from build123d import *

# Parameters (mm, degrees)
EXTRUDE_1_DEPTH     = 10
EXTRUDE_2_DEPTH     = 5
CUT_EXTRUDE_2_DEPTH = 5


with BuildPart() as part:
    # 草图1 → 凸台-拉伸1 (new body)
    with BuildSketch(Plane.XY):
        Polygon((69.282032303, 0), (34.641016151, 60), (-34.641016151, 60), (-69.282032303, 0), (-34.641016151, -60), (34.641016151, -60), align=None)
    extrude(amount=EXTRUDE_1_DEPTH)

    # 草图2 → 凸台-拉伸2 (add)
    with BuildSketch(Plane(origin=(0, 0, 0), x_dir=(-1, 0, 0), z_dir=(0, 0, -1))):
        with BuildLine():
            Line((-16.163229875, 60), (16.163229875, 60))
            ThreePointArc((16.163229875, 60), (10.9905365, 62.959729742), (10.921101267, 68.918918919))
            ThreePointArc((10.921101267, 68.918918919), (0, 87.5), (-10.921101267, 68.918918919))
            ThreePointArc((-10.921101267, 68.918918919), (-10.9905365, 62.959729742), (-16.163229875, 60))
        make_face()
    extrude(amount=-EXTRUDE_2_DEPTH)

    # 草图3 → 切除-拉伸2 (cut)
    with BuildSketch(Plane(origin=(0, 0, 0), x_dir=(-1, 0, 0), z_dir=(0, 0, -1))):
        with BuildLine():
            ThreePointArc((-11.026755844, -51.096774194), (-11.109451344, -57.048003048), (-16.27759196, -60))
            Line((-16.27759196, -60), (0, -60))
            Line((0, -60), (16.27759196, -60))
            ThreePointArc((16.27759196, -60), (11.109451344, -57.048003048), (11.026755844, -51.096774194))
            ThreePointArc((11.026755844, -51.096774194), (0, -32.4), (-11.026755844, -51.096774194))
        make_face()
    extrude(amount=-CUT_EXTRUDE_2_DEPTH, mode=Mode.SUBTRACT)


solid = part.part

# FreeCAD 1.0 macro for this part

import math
import FreeCAD as App
import Part
import Sketcher

V = App.Vector
Q = App.Units.Quantity

doc = App.newDocument("Part")
params = doc.addObject("Spreadsheet::Sheet", "Params")
for row, (alias, value) in enumerate([
    ("pad1_length", "10 mm"),
    ("sketch2_radius", "6 mm"),
    ("sketch2_radius2", "12.5 mm"),
    ("pad2_length", "5 mm"),
    ("sketch3_radius", "6 mm"),
    ("sketch3_radius2", "12.6 mm"),
    ("pocket1_length", "5 mm"),
], start=1):
    params.set(f"A{row}", alias)
    params.set(f"B{row}", "=" + value)
    params.setAlias(f"B{row}", alias)

body = doc.addObject("PartDesign::Body", "Body")

sketch1 = body.newObject("Sketcher::SketchObject", "Sketch")
sketch1.AttachmentSupport = (doc.getObject("XY_Plane"), [""])
sketch1.MapMode = "FlatFace"
sketch1.addGeometry([
    Part.LineSegment(V(69.282032, 0, 0), V(34.641016, 60, 0)),
    Part.LineSegment(V(34.641016, 60, 0), V(-34.641016, 60, 0)),
    Part.LineSegment(V(-34.641016, 60, 0), V(-69.282032, 0, 0)),
    Part.LineSegment(V(-69.282032, 0, 0), V(-34.641016, -60, 0)),
    Part.LineSegment(V(-34.641016, -60, 0), V(34.641016, -60, 0)),
    Part.LineSegment(V(34.641016, -60, 0), V(69.282032, 0, 0)),
], False)
sketch1.addConstraint([
    Sketcher.Constraint("Coincident", 0, 2, 1, 1),
    Sketcher.Constraint("Coincident", 1, 2, 2, 1),
    Sketcher.Constraint("Coincident", 2, 2, 3, 1),
    Sketcher.Constraint("Coincident", 3, 2, 4, 1),
    Sketcher.Constraint("Coincident", 4, 2, 5, 1),
    Sketcher.Constraint("Coincident", 5, 2, 0, 1),
    Sketcher.Constraint("Horizontal", 1),
    Sketcher.Constraint("Horizontal", 4),
    Sketcher.Constraint("Symmetric", 0, 2, 3, 2, -1, 1),
    Sketcher.Constraint("Symmetric", 2, 2, 5, 2, -1, 1),
    Sketcher.Constraint("PointOnObject", 2, 2, -1),
    Sketcher.Constraint("Parallel", 2, 5),
    Sketcher.Constraint("Vertical", 1, 2, 3, 2),
    Sketcher.Constraint("Angle", 0, Q("120 deg")),
    Sketcher.Constraint("DistanceY", -1, 1, 0, 2, 60.0),
    Sketcher.Constraint("DistanceX", 1, 2, 1, 1, 69.282032),
])
pad1 = body.newObject("PartDesign::Pad", "Pad")
pad1.Profile = sketch1
pad1.setExpression("Length", "Params.pad1_length")

sketch2 = body.newObject("Sketcher::SketchObject", "Sketch001")
sketch2.AttachmentSupport = (doc.getObject("XY_Plane"), [""])
sketch2.MapMode = "FlatFace"
sketch2.addGeometry([
    Part.LineSegment(V(16.16323, 60, 0), V(-16.16323, 60, 0)),
    Part.ArcOfCircle(Part.Circle(V(-16.16323, 66, 0), V(0, 0, 1), 6), math.radians(-90), math.radians(29.109909)),
    Part.ArcOfCircle(Part.Circle(V(0, 75, 0), V(0, 0, 1), 12.5), math.radians(-29.109909), math.radians(209.109909)),
    Part.ArcOfCircle(Part.Circle(V(16.16323, 66, 0), V(0, 0, 1), 6), math.radians(150.890091), math.radians(270)),
], False)
sketch2.addConstraint([
    Sketcher.Constraint("Tangent", 0, 2, 1, 1),
    Sketcher.Constraint("Tangent", 1, 2, 2, 2),
    Sketcher.Constraint("Tangent", 2, 1, 3, 1),
    Sketcher.Constraint("Tangent", 3, 2, 0, 1),
    Sketcher.Constraint("Horizontal", 0),
    Sketcher.Constraint("Equal", 1, 3),
    Sketcher.Constraint("PointOnObject", 2, 3, -2),
    Sketcher.Constraint("Radius", 1, 6.0),
    Sketcher.Constraint("Radius", 2, 12.5),
    Sketcher.Constraint("DistanceY", -1, 1, 1, 3, 66.0),
    Sketcher.Constraint("DistanceY", -1, 1, 2, 3, 75.0),
])
sketch2.setExpression("Constraints[7]", "Params.sketch2_radius")
sketch2.setExpression("Constraints[8]", "Params.sketch2_radius2")
pad2 = body.newObject("PartDesign::Pad", "Pad001")
pad2.Profile = sketch2
pad2.setExpression("Length", "Params.pad2_length")

sketch3 = body.newObject("Sketcher::SketchObject", "Sketch002")
sketch3.AttachmentSupport = (doc.getObject("XY_Plane"), [""])
sketch3.MapMode = "FlatFace"
sketch3.addGeometry([
    Part.ArcOfCircle(Part.Circle(V(16.277592, -54, 0), V(0, 0, 1), 6), math.radians(151.061472), math.radians(270)),
    Part.LineSegment(V(16.277592, -60, 0), V(-16.277592, -60, 0)),
    Part.ArcOfCircle(Part.Circle(V(-16.277592, -54, 0), V(0, 0, 1), 6), math.radians(-90), math.radians(28.938528)),
    Part.ArcOfCircle(Part.Circle(V(0, -45, 0), V(0, 0, 1), 12.6), math.radians(-28.938528), math.radians(208.938528)),
], False)
sketch3.addConstraint([
    Sketcher.Constraint("Tangent", 0, 2, 1, 1),
    Sketcher.Constraint("Tangent", 1, 2, 2, 1),
    Sketcher.Constraint("Tangent", 2, 2, 3, 2),
    Sketcher.Constraint("Tangent", 3, 1, 0, 1),
    Sketcher.Constraint("Horizontal", 1),
    Sketcher.Constraint("Equal", 0, 2),
    Sketcher.Constraint("PointOnObject", 3, 3, -2),
    Sketcher.Constraint("Radius", 0, 6.0),
    Sketcher.Constraint("Radius", 3, 12.6),
    Sketcher.Constraint("DistanceY", 0, 3, -1, 1, 54.0),
    Sketcher.Constraint("DistanceY", 3, 3, -1, 1, 45.0),
])
sketch3.setExpression("Constraints[7]", "Params.sketch3_radius")
sketch3.setExpression("Constraints[8]", "Params.sketch3_radius2")
pocket1 = body.newObject("PartDesign::Pocket", "Pocket")
pocket1.Profile = sketch3
pocket1.setExpression("Length", "Params.pocket1_length")
pocket1.Reversed = True

doc.recompute()
